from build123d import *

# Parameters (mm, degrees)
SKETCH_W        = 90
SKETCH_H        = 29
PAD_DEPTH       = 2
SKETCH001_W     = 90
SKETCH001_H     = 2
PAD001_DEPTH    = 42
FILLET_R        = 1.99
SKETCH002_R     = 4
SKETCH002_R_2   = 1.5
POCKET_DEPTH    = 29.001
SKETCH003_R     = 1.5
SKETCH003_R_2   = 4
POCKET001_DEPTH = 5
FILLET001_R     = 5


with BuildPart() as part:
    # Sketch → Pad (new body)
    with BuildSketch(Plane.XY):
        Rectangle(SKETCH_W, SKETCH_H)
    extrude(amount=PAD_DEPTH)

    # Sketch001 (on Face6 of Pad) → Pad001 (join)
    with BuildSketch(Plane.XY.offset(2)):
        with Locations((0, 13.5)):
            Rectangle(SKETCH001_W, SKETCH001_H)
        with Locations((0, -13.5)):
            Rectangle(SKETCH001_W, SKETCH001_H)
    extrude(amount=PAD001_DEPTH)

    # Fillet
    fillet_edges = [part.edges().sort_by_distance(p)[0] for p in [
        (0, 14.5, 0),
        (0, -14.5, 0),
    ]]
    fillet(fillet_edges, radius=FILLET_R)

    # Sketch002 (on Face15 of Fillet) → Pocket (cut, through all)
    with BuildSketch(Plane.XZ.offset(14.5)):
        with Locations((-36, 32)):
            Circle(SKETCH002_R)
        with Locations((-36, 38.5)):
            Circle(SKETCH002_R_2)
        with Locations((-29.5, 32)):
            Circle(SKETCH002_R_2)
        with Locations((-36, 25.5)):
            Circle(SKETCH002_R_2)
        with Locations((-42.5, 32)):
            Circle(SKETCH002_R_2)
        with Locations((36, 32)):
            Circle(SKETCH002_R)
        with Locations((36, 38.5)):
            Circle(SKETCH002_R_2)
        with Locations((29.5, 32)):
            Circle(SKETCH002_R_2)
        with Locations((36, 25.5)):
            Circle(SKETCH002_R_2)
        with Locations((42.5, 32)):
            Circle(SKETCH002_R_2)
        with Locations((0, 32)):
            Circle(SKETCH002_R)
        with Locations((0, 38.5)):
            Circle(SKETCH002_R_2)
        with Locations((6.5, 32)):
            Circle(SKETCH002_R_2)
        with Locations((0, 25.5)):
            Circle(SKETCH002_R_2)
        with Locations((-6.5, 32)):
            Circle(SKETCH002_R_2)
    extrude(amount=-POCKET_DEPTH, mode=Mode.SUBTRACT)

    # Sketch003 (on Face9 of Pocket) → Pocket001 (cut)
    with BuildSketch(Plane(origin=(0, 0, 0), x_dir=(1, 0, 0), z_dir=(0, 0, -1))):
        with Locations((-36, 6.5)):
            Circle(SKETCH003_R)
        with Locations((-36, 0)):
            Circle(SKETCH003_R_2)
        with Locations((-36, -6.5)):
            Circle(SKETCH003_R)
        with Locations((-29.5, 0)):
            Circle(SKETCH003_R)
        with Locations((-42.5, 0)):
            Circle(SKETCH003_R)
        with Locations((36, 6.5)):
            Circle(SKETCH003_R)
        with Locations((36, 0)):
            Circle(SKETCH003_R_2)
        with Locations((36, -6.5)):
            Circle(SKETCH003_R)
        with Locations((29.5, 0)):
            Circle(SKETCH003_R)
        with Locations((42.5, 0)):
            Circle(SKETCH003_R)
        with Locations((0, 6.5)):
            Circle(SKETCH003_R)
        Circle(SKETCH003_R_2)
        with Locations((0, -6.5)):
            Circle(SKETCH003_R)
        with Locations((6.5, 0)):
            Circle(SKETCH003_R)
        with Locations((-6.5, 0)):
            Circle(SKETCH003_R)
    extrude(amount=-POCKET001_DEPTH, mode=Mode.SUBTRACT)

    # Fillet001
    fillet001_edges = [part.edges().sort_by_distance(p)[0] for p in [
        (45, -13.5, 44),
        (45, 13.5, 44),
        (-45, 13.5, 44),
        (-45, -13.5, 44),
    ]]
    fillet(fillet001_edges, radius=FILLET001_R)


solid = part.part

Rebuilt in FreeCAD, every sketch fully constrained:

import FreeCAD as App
import Part
import Sketcher

V = App.Vector


def edges_at(feature, points):
    """Names of the edges that pass closest to the given points."""
    edges = feature.Shape.Edges
    near = lambda p: min(range(len(edges)), key=lambda i: edges[i].distToShape(Part.Vertex(*p))[0])
    return sorted({f"Edge{near(p) + 1}" for p in points})

doc = App.newDocument("Part")
body = doc.addObject("PartDesign::Body", "Body")

# Sketch on XY plane
sketch1 = body.newObject("Sketcher::SketchObject", "Sketch")
sketch1.AttachmentSupport = (doc.getObject("XY_Plane"), [""])
sketch1.MapMode = "FlatFace"
sketch1.addGeometry([
    Part.LineSegment(V(-45, 14, 0), V(-45, -14, 0)),
    Part.LineSegment(V(-45, -14, 0), V(45, -14, 0)),
    Part.LineSegment(V(45, -14, 0), V(45, 14, 0)),
    Part.LineSegment(V(45, 14, 0), V(-45, 14, 0)),
], False)
sketch1.addConstraint([
    Sketcher.Constraint("Coincident", 0, 2, 1, 1),
    Sketcher.Constraint("Coincident", 1, 2, 2, 1),
    Sketcher.Constraint("Coincident", 2, 2, 3, 1),
    Sketcher.Constraint("Coincident", 3, 2, 0, 1),
    Sketcher.Constraint("Vertical", 0),
    Sketcher.Constraint("Horizontal", 1),
    Sketcher.Constraint("Vertical", 2),
    Sketcher.Constraint("Horizontal", 3),
    Sketcher.Constraint("Symmetric", 0, 2, 2, 2, -1, 1),
    Sketcher.Constraint("DistanceX", 1, 1, 1, 2, 90.0),
    Sketcher.Constraint("DistanceY", 0, 2, 0, 1, 29.0),
])
pad1 = body.newObject("PartDesign::Pad", "Pad")
pad1.Profile = sketch1
pad1.Length = 2

# Sketch on XY plane
sketch2 = body.newObject("Sketcher::SketchObject", "Sketch001")
sketch2.AttachmentSupport = (doc.getObject("XY_Plane"), [""])
sketch2.MapMode = "FlatFace"
sketch2.AttachmentOffset = App.Placement(V(0, 0, 2), App.Rotation())
sketch2.addGeometry([
    Part.LineSegment(V(-45, 14.5, 0), V(-45, 12.5, 0)),  # 0
    Part.LineSegment(V(-45, 12.5, 0), V(45, 12.5, 0)),  # 1
    Part.LineSegment(V(45, 12.5, 0), V(45, 14.5, 0)),  # 2
    Part.LineSegment(V(45, 14.5, 0), V(-45, 14.5, 0)),  # 3
    Part.LineSegment(V(-45, -12.5, 0), V(-45, -14.5, 0)),  # 4
    Part.LineSegment(V(-45, -14.5, 0), V(45, -14.5, 0)),  # 5
    Part.LineSegment(V(45, -14.5, 0), V(45, -12.5, 0)),  # 6
    Part.LineSegment(V(45, -12.5, 0), V(-45, -12.5, 0)),  # 7
], False)
sketch2.addConstraint([
    Sketcher.Constraint("Coincident", 0, 2, 1, 1),
    Sketcher.Constraint("Coincident", 1, 2, 2, 1),
    Sketcher.Constraint("Coincident", 2, 2, 3, 1),
    Sketcher.Constraint("Coincident", 3, 2, 0, 1),
    Sketcher.Constraint("Coincident", 4, 2, 5, 1),
    Sketcher.Constraint("Coincident", 5, 2, 6, 1),
    Sketcher.Constraint("Coincident", 6, 2, 7, 1),
    Sketcher.Constraint("Coincident", 7, 2, 4, 1),
    Sketcher.Constraint("Vertical", 0),
    Sketcher.Constraint("Horizontal", 1),
    Sketcher.Constraint("Vertical", 2),
    Sketcher.Constraint("Horizontal", 3),
    Sketcher.Constraint("Vertical", 4),
    Sketcher.Constraint("Horizontal", 5),
    Sketcher.Constraint("Vertical", 6),
    Sketcher.Constraint("Horizontal", 7),
    Sketcher.Constraint("Symmetric", 2, 2, 4, 2, -1, 1),
    Sketcher.Constraint("Symmetric", 0, 2, 6, 2, -1, 1),
    Sketcher.Constraint("Vertical", 3, 2, 4, 2),
    Sketcher.Constraint("DistanceX", 1, 1, 1, 2, 90.0),
    Sketcher.Constraint("DistanceY", 0, 2, 0, 1, 2.0),
    Sketcher.Constraint("DistanceY", 4, 2, 0, 2, 27.0),
])
pad2 = body.newObject("PartDesign::Pad", "Pad001")
pad2.Profile = sketch2
pad2.Length = 42
doc.recompute()

fillet = body.newObject("PartDesign::Fillet", "Fillet")
fillet.Base = (pad2, edges_at(pad2, [(0, 14.5, 0), (0, -14.5, 0)]))
fillet.Radius = 1.99

# Sketch on XZ plane
sketch3 = body.newObject("Sketcher::SketchObject", "Sketch002")
sketch3.AttachmentSupport = (doc.getObject("XZ_Plane"), [""])
sketch3.MapMode = "FlatFace"
sketch3.AttachmentOffset = App.Placement(V(0, 0, 14.5), App.Rotation())
sketch3.addGeometry([
    Part.Circle(V(-36, 32, 0), V(0, 0, 1), 4),  # 0
    Part.Circle(V(-36, 38.5, 0), V(0, 0, 1), 1.5),  # 1
    Part.Circle(V(-29.5, 32, 0), V(0, 0, 1), 1.5),  # 2
    Part.Circle(V(-36, 25.5, 0), V(0, 0, 1), 1.5),  # 3
    Part.Circle(V(-42.5, 32, 0), V(0, 0, 1), 1.5),  # 4
    Part.Circle(V(36, 32, 0), V(0, 0, 1), 4),  # 5
    Part.Circle(V(36, 38.5, 0), V(0, 0, 1), 1.5),  # 6
    Part.Circle(V(29.5, 32, 0), V(0, 0, 1), 1.5),  # 7
    Part.Circle(V(36, 25.5, 0), V(0, 0, 1), 1.5),  # 8
    Part.Circle(V(42.5, 32, 0), V(0, 0, 1), 1.5),  # 9
    Part.Circle(V(0, 32, 0), V(0, 0, 1), 4),  # 10
    Part.Circle(V(0, 38.5, 0), V(0, 0, 1), 1.5),  # 11
    Part.Circle(V(6.5, 32, 0), V(0, 0, 1), 1.5),  # 12
    Part.Circle(V(0, 25.5, 0), V(0, 0, 1), 1.5),  # 13
    Part.Circle(V(-6.5, 32, 0), V(0, 0, 1), 1.5),  # 14
], False)
sketch3.addConstraint([
    Sketcher.Constraint("Equal", 1, 2),
    Sketcher.Constraint("Equal", 2, 3),
    Sketcher.Constraint("Equal", 3, 4),
    Sketcher.Constraint("Equal", 0, 5),
    Sketcher.Constraint("Equal", 4, 6),
    Sketcher.Constraint("Equal", 6, 7),
    Sketcher.Constraint("Equal", 7, 8),
    Sketcher.Constraint("Equal", 8, 9),
    Sketcher.Constraint("Equal", 5, 10),
    Sketcher.Constraint("Equal", 9, 11),
    Sketcher.Constraint("Equal", 11, 12),
    Sketcher.Constraint("Equal", 12, 13),
    Sketcher.Constraint("Equal", 13, 14),
    Sketcher.Constraint("Symmetric", 0, 3, 5, 3, -2),
    Sketcher.Constraint("Symmetric", 1, 3, 6, 3, -2),
    Sketcher.Constraint("Symmetric", 2, 3, 7, 3, -2),
    Sketcher.Constraint("Symmetric", 3, 3, 8, 3, -2),
    Sketcher.Constraint("Symmetric", 4, 3, 9, 3, -2),
    Sketcher.Constraint("Symmetric", 12, 3, 14, 3, -2),
    Sketcher.Constraint("PointOnObject", 10, 3, -2),
    Sketcher.Constraint("PointOnObject", 11, 3, -2),
    Sketcher.Constraint("PointOnObject", 13, 3, -2),
    Sketcher.Constraint("Horizontal", 0, 3, 2, 3),
    Sketcher.Constraint("Horizontal", 2, 3, 4, 3),
    Sketcher.Constraint("Horizontal", 9, 3, 10, 3),
    Sketcher.Constraint("Horizontal", 6, 3, 11, 3),
    Sketcher.Constraint("Horizontal", 10, 3, 12, 3),
    Sketcher.Constraint("Horizontal", 8, 3, 13, 3),
    Sketcher.Constraint("Vertical", 0, 3, 1, 3),
    Sketcher.Constraint("Vertical", 1, 3, 3, 3),
    Sketcher.Constraint("Diameter", 0, 8.0),
    Sketcher.Constraint("Diameter", 1, 3.0),
    Sketcher.Constraint("DistanceX", 0, 3, -1, 1, 36.0),
    Sketcher.Constraint("DistanceY", -1, 1, 0, 3, 32.0),
    Sketcher.Constraint("DistanceY", 3, 3, 1, 3, 13.0),
    Sketcher.Constraint("DistanceX", 4, 3, 2, 3, 13.0),
    Sketcher.Constraint("DistanceX", 2, 3, 7, 3, 59.0),
    Sketcher.Constraint("DistanceX", 12, 3, 7, 3, 23.0),
    Sketcher.Constraint("DistanceY", -1, 1, 1, 3, 38.5),
])
pocket1 = body.newObject("PartDesign::Pocket", "Pocket")
pocket1.Profile = sketch3
pocket1.Type = "ThroughAll"

# Sketch on XY plane
sketch4 = body.newObject("Sketcher::SketchObject", "Sketch003")
sketch4.AttachmentSupport = (doc.getObject("XY_Plane"), [""])
sketch4.MapMode = "FlatFace"
sketch4.addGeometry([
    Part.Circle(V(-36, -6.5, 0), V(0, 0, 1), 1.5),  # 0
    Part.Circle(V(-36, 0, 0), V(0, 0, 1), 4),  # 1
    Part.Circle(V(-36, 6.5, 0), V(0, 0, 1), 1.5),  # 2
    Part.Circle(V(-29.5, 0, 0), V(0, 0, 1), 1.5),  # 3
    Part.Circle(V(-42.5, 0, 0), V(0, 0, 1), 1.5),  # 4
    Part.Circle(V(36, -6.5, 0), V(0, 0, 1), 1.5),  # 5
    Part.Circle(V(36, 0, 0), V(0, 0, 1), 4),  # 6
    Part.Circle(V(36, 6.5, 0), V(0, 0, 1), 1.5),  # 7
    Part.Circle(V(29.5, 0, 0), V(0, 0, 1), 1.5),  # 8
    Part.Circle(V(42.5, 0, 0), V(0, 0, 1), 1.5),  # 9
    Part.Circle(V(0, -6.5, 0), V(0, 0, 1), 1.5),  # 10
    Part.Circle(V(0, 0, 0), V(0, 0, 1), 4),  # 11
    Part.Circle(V(0, 6.5, 0), V(0, 0, 1), 1.5),  # 12
    Part.Circle(V(6.5, 0, 0), V(0, 0, 1), 1.5),  # 13
    Part.Circle(V(-6.5, 0, 0), V(0, 0, 1), 1.5),  # 14
], False)
sketch4.addConstraint([
    Sketcher.Constraint("Coincident", 11, 3, -1, 1),
    Sketcher.Constraint("Equal", 0, 2),
    Sketcher.Constraint("Equal", 2, 3),
    Sketcher.Constraint("Equal", 3, 4),
    Sketcher.Constraint("Equal", 4, 5),
    Sketcher.Constraint("Equal", 1, 6),
    Sketcher.Constraint("Equal", 5, 7),
    Sketcher.Constraint("Equal", 7, 8),
    Sketcher.Constraint("Equal", 8, 9),
    Sketcher.Constraint("Equal", 9, 10),
    Sketcher.Constraint("Equal", 6, 11),
    Sketcher.Constraint("Equal", 10, 12),
    Sketcher.Constraint("Equal", 12, 13),
    Sketcher.Constraint("Equal", 13, 14),
    Sketcher.Constraint("Symmetric", 2, 3, 5, 3, -1, 1),
    Sketcher.Constraint("Symmetric", 1, 3, 6, 3, -1, 1),
    Sketcher.Constraint("Symmetric", 0, 3, 7, 3, -1, 1),
    Sketcher.Constraint("Symmetric", 3, 3, 8, 3, -1, 1),
    Sketcher.Constraint("Symmetric", 4, 3, 9, 3, -1, 1),
    Sketcher.Constraint("Symmetric", 10, 3, 12, 3, -1, 1),
    Sketcher.Constraint("Symmetric", 13, 3, 14, 3, -1, 1),
    Sketcher.Constraint("Symmetric", 0, 3, 5, 3, -2),
    Sketcher.Constraint("PointOnObject", 1, 3, -1),
    Sketcher.Constraint("PointOnObject", 3, 3, -1),
    Sketcher.Constraint("PointOnObject", 4, 3, -1),
    Sketcher.Constraint("PointOnObject", 10, 3, -2),
    Sketcher.Constraint("PointOnObject", 13, 3, -1),
    Sketcher.Constraint("Horizontal", 5, 3, 10, 3),
    Sketcher.Constraint("Vertical", 0, 3, 1, 3),
    Sketcher.Constraint("Diameter", 0, 3.0),
    Sketcher.Constraint("Diameter", 1, 8.0),
    Sketcher.Constraint("DistanceX", 0, 3, -1, 1, 36.0),
    Sketcher.Constraint("DistanceY", 0, 3, 2, 3, 13.0),
    Sketcher.Constraint("DistanceX", 4, 3, 3, 3, 13.0),
    Sketcher.Constraint("DistanceX", 3, 3, 8, 3, 59.0),
    Sketcher.Constraint("DistanceX", 13, 3, 8, 3, 23.0),
])
pocket2 = body.newObject("PartDesign::Pocket", "Pocket001")
pocket2.Profile = sketch4
pocket2.Length = 5
pocket2.Reversed = True
doc.recompute()

fillet2 = body.newObject("PartDesign::Fillet", "Fillet001")
fillet2.Base = (pocket2, edges_at(pocket2, [
    (45, -13.5, 44),
    (45, 13.5, 44),
    (-45, 13.5, 44),
    (-45, -13.5, 44),
]))
fillet2.Radius = 5

doc.recompute()
